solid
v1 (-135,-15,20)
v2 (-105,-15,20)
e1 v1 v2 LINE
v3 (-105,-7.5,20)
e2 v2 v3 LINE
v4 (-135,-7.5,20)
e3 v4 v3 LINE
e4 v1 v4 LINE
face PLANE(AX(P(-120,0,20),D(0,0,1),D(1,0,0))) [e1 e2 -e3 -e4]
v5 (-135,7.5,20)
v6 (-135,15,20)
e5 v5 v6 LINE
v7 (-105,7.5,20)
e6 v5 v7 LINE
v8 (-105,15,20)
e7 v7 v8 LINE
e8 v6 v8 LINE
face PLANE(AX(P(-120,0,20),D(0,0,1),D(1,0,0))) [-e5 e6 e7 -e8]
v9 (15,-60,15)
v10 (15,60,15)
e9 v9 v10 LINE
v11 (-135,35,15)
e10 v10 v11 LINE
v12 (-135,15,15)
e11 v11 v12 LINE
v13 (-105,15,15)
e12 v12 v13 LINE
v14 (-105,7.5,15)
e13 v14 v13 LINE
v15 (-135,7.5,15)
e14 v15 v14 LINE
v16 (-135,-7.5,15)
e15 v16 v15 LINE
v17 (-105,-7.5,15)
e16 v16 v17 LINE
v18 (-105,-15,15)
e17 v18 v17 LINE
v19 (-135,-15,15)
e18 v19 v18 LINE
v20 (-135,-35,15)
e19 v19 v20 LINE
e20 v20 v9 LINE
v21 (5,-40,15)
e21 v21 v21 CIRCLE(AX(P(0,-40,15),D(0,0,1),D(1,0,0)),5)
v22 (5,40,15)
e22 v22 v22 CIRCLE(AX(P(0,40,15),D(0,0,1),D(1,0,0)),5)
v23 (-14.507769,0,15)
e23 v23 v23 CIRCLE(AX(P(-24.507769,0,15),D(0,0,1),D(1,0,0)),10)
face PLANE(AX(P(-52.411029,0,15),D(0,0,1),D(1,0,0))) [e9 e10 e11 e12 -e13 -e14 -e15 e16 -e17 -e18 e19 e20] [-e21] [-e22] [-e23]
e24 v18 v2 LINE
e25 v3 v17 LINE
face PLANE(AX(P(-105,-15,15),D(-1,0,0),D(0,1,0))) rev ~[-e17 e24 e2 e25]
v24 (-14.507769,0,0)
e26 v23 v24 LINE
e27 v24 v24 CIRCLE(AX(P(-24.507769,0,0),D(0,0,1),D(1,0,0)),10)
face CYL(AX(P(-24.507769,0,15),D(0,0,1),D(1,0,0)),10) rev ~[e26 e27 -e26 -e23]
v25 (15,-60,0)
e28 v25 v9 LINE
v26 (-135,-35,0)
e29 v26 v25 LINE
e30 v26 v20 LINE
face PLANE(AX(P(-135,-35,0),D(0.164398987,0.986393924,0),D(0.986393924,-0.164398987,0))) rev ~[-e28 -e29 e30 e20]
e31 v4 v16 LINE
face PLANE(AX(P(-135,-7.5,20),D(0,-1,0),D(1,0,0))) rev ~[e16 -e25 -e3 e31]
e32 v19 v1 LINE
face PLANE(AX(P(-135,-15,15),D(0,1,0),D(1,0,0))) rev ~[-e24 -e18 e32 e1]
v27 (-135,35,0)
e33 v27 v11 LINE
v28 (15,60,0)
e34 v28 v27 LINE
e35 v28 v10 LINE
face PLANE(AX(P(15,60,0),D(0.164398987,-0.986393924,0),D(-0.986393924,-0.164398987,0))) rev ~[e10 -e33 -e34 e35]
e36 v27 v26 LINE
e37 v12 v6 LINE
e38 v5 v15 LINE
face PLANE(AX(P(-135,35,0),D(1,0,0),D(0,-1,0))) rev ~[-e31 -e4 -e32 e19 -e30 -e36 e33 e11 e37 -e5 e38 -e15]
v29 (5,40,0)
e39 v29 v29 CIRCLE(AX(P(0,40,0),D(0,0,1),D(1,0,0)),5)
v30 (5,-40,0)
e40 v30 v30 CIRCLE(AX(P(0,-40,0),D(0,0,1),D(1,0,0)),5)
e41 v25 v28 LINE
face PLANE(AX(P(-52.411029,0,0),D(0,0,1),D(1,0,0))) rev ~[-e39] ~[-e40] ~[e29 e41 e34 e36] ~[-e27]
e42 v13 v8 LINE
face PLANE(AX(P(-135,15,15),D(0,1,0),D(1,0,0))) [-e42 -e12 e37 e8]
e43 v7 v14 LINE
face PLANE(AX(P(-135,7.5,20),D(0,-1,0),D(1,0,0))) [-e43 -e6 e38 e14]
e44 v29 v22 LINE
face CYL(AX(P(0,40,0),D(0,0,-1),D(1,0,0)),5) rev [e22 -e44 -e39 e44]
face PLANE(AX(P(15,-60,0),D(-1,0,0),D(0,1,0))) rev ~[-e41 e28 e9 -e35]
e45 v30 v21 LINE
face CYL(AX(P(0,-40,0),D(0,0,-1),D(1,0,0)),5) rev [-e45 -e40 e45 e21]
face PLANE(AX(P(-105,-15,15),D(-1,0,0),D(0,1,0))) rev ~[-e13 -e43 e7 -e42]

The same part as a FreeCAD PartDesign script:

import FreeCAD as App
import Part
import Sketcher
from FreeCAD import Vector


def add_polygon(sketch, points):
    """Adds a closed chain of lines whose ends are joined by coincident constraints."""
    first, n = sketch.GeometryCount, len(points)
    for a, b in zip(points, points[1:] + points[:1]):
        sketch.addGeometry(Part.LineSegment(App.Vector(*a, 0), App.Vector(*b, 0)), False)
    for i in range(n):
        sketch.addConstraint(Sketcher.Constraint("Coincident", first + i, 2, first + (i + 1) % n, 1))

doc = App.newDocument("Part")
body = doc.addObject("PartDesign::Body", "Body")

sketch1 = doc.addObject("Sketcher::SketchObject", "Sketch")
body.addObject(sketch1)
sketch1.AttachmentSupport = (doc.XY_Plane, [""])
sketch1.MapMode = "FlatFace"
add_polygon(sketch1, [(-135, -35), (15, -60), (15, 60), (-135, 35)])
sketch1.addGeometry(Part.Circle(Vector(0, -40, 0), Vector(0, 0, 1), 5), False)
sketch1.addGeometry(Part.Circle(Vector(0, 40, 0), Vector(0, 0, 1), 5), False)
sketch1.addConstraint([
    Sketcher.Constraint("Vertical", 1),
    Sketcher.Constraint("Vertical", 3),
    Sketcher.Constraint("Equal", 4, 5),
    Sketcher.Constraint("Symmetric", 4, 3, 5, 3, -1, 1),
    Sketcher.Constraint("PointOnObject", 4, 3, -2),
    Sketcher.Constraint("Equal", 0, 2),
    Sketcher.Constraint("Diameter", 4, 10.0),
    Sketcher.Constraint("DistanceY", 1, 1, 1, 2, 120.0),
    Sketcher.Constraint("DistanceY", 3, 2, 3, 1, 70.0),
    Sketcher.Constraint("DistanceY", 4, 3, -1, 1, 40.0),
    Sketcher.Constraint("DistanceX", -1, 1, 0, 2, 15.0),
    Sketcher.Constraint("DistanceY", 0, 2, -1, 1, 60.0),
    Sketcher.Constraint("DistanceX", 2, 2, -1, 1, 135.0),
])
pad1 = doc.addObject("PartDesign::Pad", "Pad")
body.addObject(pad1)
pad1.Profile = sketch1
pad1.Length = 15

sketch2 = doc.addObject("Sketcher::SketchObject", "Sketch001")
body.addObject(sketch2)
sketch2.AttachmentSupport = (doc.XY_Plane, [""])
sketch2.MapMode = "FlatFace"
sketch2.AttachmentOffset = App.Placement(Vector(0, 0, 15), App.Rotation())
add_polygon(sketch2, [(-135, 15), (-135, -15), (-105, -15), (-105, 15)])
sketch2.addConstraint([
    Sketcher.Constraint("Vertical", 0),
    Sketcher.Constraint("Horizontal", 1),
    Sketcher.Constraint("Vertical", 2),
    Sketcher.Constraint("Horizontal", 3),
    Sketcher.Constraint("Equal", 3, 0),
    Sketcher.Constraint("DistanceX", 1, 1, 1, 2, 30.0),
    Sketcher.Constraint("DistanceX", 0, 2, -1, 1, 135.0),
    Sketcher.Constraint("DistanceY", 0, 2, -1, 1, 15.0),
])
pad2 = doc.addObject("PartDesign::Pad", "Pad001")
body.addObject(pad2)
pad2.Profile = sketch2
pad2.Length = 5

sketch3 = doc.addObject("Sketcher::SketchObject", "Sketch002")
body.addObject(sketch3)
sketch3.AttachmentSupport = (doc.XY_Plane, [""])
sketch3.MapMode = "FlatFace"
sketch3.AttachmentOffset = App.Placement(Vector(0, 0, 20), App.Rotation())
add_polygon(sketch3, [(-135, 7.5), (-135, -7.5), (-105, -7.5), (-105, 7.5)])
sketch3.addConstraint([
    Sketcher.Constraint("Vertical", 0),
    Sketcher.Constraint("Horizontal", 1),
    Sketcher.Constraint("Vertical", 2),
    Sketcher.Constraint("Horizontal", 3),
    Sketcher.Constraint("DistanceX", 1, 1, 1, 2, 30.0),
    Sketcher.Constraint("DistanceY", 0, 2, 0, 1, 15.0),
    Sketcher.Constraint("DistanceX", 0, 2, -1, 1, 135.0),
    Sketcher.Constraint("DistanceY", 0, 2, -1, 1, 7.5),
])
pocket1 = doc.addObject("PartDesign::Pocket", "Pocket")
body.addObject(pocket1)
pocket1.Profile = sketch3
pocket1.Length = 5

sketch4 = doc.addObject("Sketcher::SketchObject", "Sketch003")
body.addObject(sketch4)
sketch4.AttachmentSupport = (doc.XY_Plane, [""])
sketch4.MapMode = "FlatFace"
sketch4.AttachmentOffset = App.Placement(Vector(0, 0, 15), App.Rotation())
sketch4.addGeometry(Part.Circle(Vector(-24.507769, 0, 0), Vector(0, 0, 1), 10), False)
sketch4.addConstraint([
    Sketcher.Constraint("PointOnObject", 0, 3, -1),
    Sketcher.Constraint("Diameter", 0, 20.0),
    Sketcher.Constraint("DistanceX", 0, 3, -1, 1, 24.507769),
])
pocket2 = doc.addObject("PartDesign::Pocket", "Pocket001")
body.addObject(pocket2)
pocket2.Profile = sketch4
pocket2.Length = 15

doc.recompute()
